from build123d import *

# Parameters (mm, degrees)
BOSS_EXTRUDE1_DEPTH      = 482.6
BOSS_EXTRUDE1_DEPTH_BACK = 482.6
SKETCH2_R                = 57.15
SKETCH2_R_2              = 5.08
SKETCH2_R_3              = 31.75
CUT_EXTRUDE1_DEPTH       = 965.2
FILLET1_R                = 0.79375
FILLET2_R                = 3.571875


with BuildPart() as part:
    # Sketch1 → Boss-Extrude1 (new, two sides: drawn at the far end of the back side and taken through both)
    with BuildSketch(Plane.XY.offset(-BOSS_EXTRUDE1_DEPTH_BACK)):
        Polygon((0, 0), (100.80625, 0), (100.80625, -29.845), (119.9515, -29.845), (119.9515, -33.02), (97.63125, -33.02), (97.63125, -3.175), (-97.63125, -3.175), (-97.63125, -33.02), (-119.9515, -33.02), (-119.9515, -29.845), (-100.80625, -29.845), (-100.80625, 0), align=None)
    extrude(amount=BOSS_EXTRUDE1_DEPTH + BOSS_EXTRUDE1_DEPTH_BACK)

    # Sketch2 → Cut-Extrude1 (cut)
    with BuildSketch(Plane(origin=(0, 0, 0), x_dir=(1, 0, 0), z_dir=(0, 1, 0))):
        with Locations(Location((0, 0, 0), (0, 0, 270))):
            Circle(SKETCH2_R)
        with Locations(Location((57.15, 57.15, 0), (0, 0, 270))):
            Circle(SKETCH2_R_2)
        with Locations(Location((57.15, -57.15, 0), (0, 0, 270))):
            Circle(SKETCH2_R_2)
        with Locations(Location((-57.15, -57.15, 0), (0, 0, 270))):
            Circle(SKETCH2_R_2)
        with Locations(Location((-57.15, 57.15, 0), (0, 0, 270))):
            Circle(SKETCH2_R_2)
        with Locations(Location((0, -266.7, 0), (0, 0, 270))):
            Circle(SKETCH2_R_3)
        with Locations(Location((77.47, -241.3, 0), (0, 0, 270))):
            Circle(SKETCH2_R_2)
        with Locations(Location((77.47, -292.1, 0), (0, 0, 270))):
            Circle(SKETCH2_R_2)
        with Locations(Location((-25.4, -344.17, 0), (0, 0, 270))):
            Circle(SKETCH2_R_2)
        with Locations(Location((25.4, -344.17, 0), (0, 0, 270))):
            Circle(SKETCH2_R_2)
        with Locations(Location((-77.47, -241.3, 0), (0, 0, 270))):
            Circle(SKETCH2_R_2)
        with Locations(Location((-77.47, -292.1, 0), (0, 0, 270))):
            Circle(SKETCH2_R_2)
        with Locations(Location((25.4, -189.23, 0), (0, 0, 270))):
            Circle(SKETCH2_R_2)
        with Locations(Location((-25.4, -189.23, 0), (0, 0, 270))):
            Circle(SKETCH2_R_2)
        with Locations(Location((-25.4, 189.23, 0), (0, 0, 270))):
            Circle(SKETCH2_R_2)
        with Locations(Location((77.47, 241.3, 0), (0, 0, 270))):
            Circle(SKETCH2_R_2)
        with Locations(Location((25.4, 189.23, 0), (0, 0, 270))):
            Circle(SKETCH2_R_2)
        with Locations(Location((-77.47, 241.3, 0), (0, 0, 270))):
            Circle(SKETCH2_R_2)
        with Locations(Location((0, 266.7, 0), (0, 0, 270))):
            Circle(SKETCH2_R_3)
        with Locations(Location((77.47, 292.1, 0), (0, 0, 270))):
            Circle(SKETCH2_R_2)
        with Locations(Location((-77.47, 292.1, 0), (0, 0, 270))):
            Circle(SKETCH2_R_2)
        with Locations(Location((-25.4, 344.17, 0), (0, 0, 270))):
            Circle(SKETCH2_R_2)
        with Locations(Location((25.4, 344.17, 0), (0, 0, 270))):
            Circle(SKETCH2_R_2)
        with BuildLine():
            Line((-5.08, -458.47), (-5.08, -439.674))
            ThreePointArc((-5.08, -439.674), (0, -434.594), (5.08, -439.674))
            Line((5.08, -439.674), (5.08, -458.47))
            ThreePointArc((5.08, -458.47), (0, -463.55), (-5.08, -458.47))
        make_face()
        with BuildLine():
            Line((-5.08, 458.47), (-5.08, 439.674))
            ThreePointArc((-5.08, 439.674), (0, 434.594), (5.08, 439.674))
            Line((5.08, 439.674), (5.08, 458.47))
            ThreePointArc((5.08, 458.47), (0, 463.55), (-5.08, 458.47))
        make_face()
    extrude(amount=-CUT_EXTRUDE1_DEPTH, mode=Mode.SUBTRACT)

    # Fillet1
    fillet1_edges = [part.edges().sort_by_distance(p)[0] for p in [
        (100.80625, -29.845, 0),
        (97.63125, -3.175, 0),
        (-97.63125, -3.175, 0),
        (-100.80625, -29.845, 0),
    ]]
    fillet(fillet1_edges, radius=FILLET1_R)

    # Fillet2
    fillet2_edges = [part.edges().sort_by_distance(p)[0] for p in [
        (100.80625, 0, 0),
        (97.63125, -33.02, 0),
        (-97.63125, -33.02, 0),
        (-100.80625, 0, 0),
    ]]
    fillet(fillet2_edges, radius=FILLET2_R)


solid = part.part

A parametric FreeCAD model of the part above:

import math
import FreeCAD as App
import Part
import Sketcher
Q = App.Units.Quantity


def edges_at(feature, points):
    """Names of the edges that pass closest to the given points."""
    edges = feature.Shape.Edges
    near = lambda p: min(range(len(edges)), key=lambda i: edges[i].distToShape(Part.Vertex(*p))[0])
    return sorted({f"Edge{near(p) + 1}" for p in points})


def add_polygon(sketch, points):
    """Adds a closed chain of lines whose ends are joined by coincident constraints."""
    first, n = sketch.GeometryCount, len(points)
    for a, b in zip(points, points[1:] + points[:1]):
        sketch.addGeometry(Part.LineSegment(App.Vector(*a, 0), App.Vector(*b, 0)), False)
    for i in range(n):
        sketch.addConstraint(Sketcher.Constraint("Coincident", first + i, 2, first + (i + 1) % n, 1))

doc = App.newDocument("Part")
body = doc.addObject("PartDesign::Body", "Body")

# Sketch on XY plane
sketch1 = body.newObject("Sketcher::SketchObject", "Sketch")
sketch1.AttachmentSupport = (doc.getObject("XY_Plane"), [""])
sketch1.MapMode = "FlatFace"
add_polygon(sketch1, [(100.80625, 0), (-100.80625, 0), (-100.80625, -29.845), (-119.9515, -29.845), (-119.9515, -33.02), (-97.63125, -33.02), (-97.63125, -3.175), (97.63125, -3.175), (97.63125, -33.02), (119.9515, -33.02), (119.9515, -29.845), (100.80625, -29.845)])  # lines 0-11
sketch1.addConstraint([
    Sketcher.Constraint("Horizontal", 0),
    Sketcher.Constraint("Vertical", 1),
    Sketcher.Constraint("Horizontal", 2),
    Sketcher.Constraint("Vertical", 3),
    Sketcher.Constraint("Horizontal", 4),
    Sketcher.Constraint("Vertical", 5),
    Sketcher.Constraint("Horizontal", 6),
    Sketcher.Constraint("Vertical", 7),
    Sketcher.Constraint("Horizontal", 8),
    Sketcher.Constraint("Vertical", 9),
    Sketcher.Constraint("Horizontal", 10),
    Sketcher.Constraint("Vertical", 11),
    Sketcher.Constraint("Symmetric", 0, 2, 11, 2, -1, 1),
    Sketcher.Constraint("Symmetric", 4, 2, 7, 2, -2),
    Sketcher.Constraint("Symmetric", 2, 2, 9, 2, -2),
    Sketcher.Constraint("Equal", 1, 5),
    Sketcher.Constraint("DistanceY", 3, 2, -1, 1, Q("1.3 in")),
    Sketcher.Constraint("DistanceX", 0, 2, 0, 1, Q("7.9375 in")),
    Sketcher.Constraint("DistanceX", 6, 1, 6, 2, Q("7.6875 in")),
    Sketcher.Constraint("DistanceY", 1, 2, 1, 1, Q("1.175 in")),
    Sketcher.Constraint("DistanceX", 2, 2, -1, 1, Q("4.7225 in")),
])
pad1 = body.newObject("PartDesign::Pad", "Pad")
pad1.Profile = sketch1
pad1.Type = "TwoLengths"
pad1.Length = Q("19 in")
pad1.Length2 = Q("19 in")

# Sketch on XZ plane
sketch2 = body.newObject("Sketcher::SketchObject", "Sketch001")
sketch2.AttachmentSupport = (doc.getObject("XZ_Plane"), [""])
sketch2.MapMode = "FlatFace"
sketch2.addGeometry([
    Part.Circle(App.Vector(0, 0, 0), App.Vector(0, 0, 1), 57.15),  # 0
    Part.Circle(App.Vector(57.15, -57.15, 0), App.Vector(0, 0, 1), 5.08),  # 1
    Part.Circle(App.Vector(57.15, 57.15, 0), App.Vector(0, 0, 1), 5.08),  # 2
    Part.Circle(App.Vector(-57.15, 57.15, 0), App.Vector(0, 0, 1), 5.08),  # 3
    Part.Circle(App.Vector(-57.15, -57.15, 0), App.Vector(0, 0, 1), 5.08),  # 4
    Part.Circle(App.Vector(0, 266.7, 0), App.Vector(0, 0, 1), 31.75),  # 5
    Part.Circle(App.Vector(77.47, 241.3, 0), App.Vector(0, 0, 1), 5.08),  # 6
    Part.Circle(App.Vector(77.47, 292.1, 0), App.Vector(0, 0, 1), 5.08),  # 7
    Part.Circle(App.Vector(-25.4, 344.17, 0), App.Vector(0, 0, 1), 5.08),  # 8
    Part.Circle(App.Vector(25.4, 344.17, 0), App.Vector(0, 0, 1), 5.08),  # 9
    Part.Circle(App.Vector(-77.47, 241.3, 0), App.Vector(0, 0, 1), 5.08),  # 10
    Part.Circle(App.Vector(-77.47, 292.1, 0), App.Vector(0, 0, 1), 5.08),  # 11
    Part.Circle(App.Vector(25.4, 189.23, 0), App.Vector(0, 0, 1), 5.08),  # 12
    Part.Circle(App.Vector(-25.4, 189.23, 0), App.Vector(0, 0, 1), 5.08),  # 13
    Part.Circle(App.Vector(-25.4, -189.23, 0), App.Vector(0, 0, 1), 5.08),  # 14
    Part.Circle(App.Vector(77.47, -241.3, 0), App.Vector(0, 0, 1), 5.08),  # 15
    Part.Circle(App.Vector(25.4, -189.23, 0), App.Vector(0, 0, 1), 5.08),  # 16
    Part.Circle(App.Vector(-77.47, -241.3, 0), App.Vector(0, 0, 1), 5.08),  # 17
    Part.Circle(App.Vector(0, -266.7, 0), App.Vector(0, 0, 1), 31.75),  # 18
    Part.Circle(App.Vector(77.47, -292.1, 0), App.Vector(0, 0, 1), 5.08),  # 19
    Part.Circle(App.Vector(-77.47, -292.1, 0), App.Vector(0, 0, 1), 5.08),  # 20
    Part.Circle(App.Vector(-25.4, -344.17, 0), App.Vector(0, 0, 1), 5.08),  # 21
    Part.Circle(App.Vector(25.4, -344.17, 0), App.Vector(0, 0, 1), 5.08),  # 22
    Part.LineSegment(App.Vector(-5.08, 439.674, 0), App.Vector(-5.08, 458.47, 0)),  # 23
    Part.ArcOfCircle(Part.Circle(App.Vector(0, 458.47, 0), App.Vector(0, 0, 1), 5.08), math.radians(0), math.radians(180)),  # 24
    Part.LineSegment(App.Vector(5.08, 458.47, 0), App.Vector(5.08, 439.674, 0)),  # 25
    Part.ArcOfCircle(Part.Circle(App.Vector(0, 439.674, 0), App.Vector(0, 0, 1), 5.08), math.radians(180), math.radians(360)),  # 26
    Part.LineSegment(App.Vector(-5.08, -458.47, 0), App.Vector(-5.08, -439.674, 0)),  # 27
    Part.ArcOfCircle(Part.Circle(App.Vector(0, -439.674, 0), App.Vector(0, 0, 1), 5.08), math.radians(0), math.radians(180)),  # 28
    Part.LineSegment(App.Vector(5.08, -439.674, 0), App.Vector(5.08, -458.47, 0)),  # 29
    Part.ArcOfCircle(Part.Circle(App.Vector(0, -458.47, 0), App.Vector(0, 0, 1), 5.08), math.radians(180), math.radians(360)),  # 30
], False)
sketch2.addConstraint([
    Sketcher.Constraint("Tangent", 23, 2, 24, 2),
    Sketcher.Constraint("Tangent", 24, 1, 25, 1),
    Sketcher.Constraint("Tangent", 25, 2, 26, 2),
    Sketcher.Constraint("Tangent", 26, 1, 23, 1),
    Sketcher.Constraint("Tangent", 27, 2, 28, 2),
    Sketcher.Constraint("Tangent", 28, 1, 29, 1),
    Sketcher.Constraint("Tangent", 29, 2, 30, 2),
    Sketcher.Constraint("Tangent", 30, 1, 27, 1),
    Sketcher.Constraint("Vertical", 23),
    Sketcher.Constraint("Vertical", 25),
    Sketcher.Constraint("Vertical", 27),
    Sketcher.Constraint("Vertical", 29),
    Sketcher.Constraint("Coincident", 0, 3, -1, 1),
    Sketcher.Constraint("Equal", 1, 2),
    Sketcher.Constraint("Equal", 2, 3),
    Sketcher.Constraint("Equal", 3, 4),
    Sketcher.Constraint("Equal", 4, 6),
    Sketcher.Constraint("Equal", 6, 7),
    Sketcher.Constraint("Equal", 7, 8),
    Sketcher.Constraint("Equal", 8, 9),
    Sketcher.Constraint("Equal", 9, 10),
    Sketcher.Constraint("Equal", 10, 11),
    Sketcher.Constraint("Equal", 11, 12),
    Sketcher.Constraint("Equal", 12, 13),
    Sketcher.Constraint("Equal", 13, 14),
    Sketcher.Constraint("Equal", 14, 15),
    Sketcher.Constraint("Equal", 15, 16),
    Sketcher.Constraint("Equal", 16, 17),
    Sketcher.Constraint("Equal", 5, 18),
    Sketcher.Constraint("Equal", 17, 19),
    Sketcher.Constraint("Equal", 19, 20),
    Sketcher.Constraint("Equal", 20, 21),
    Sketcher.Constraint("Equal", 21, 22),
    Sketcher.Constraint("Equal", 22, 24),
    Sketcher.Constraint("Equal", 26, 28),
    Sketcher.Constraint("Symmetric", 1, 3, 3, 3, -1, 1),
    Sketcher.Constraint("Symmetric", 2, 3, 4, 3, -1, 1),
    Sketcher.Constraint("Symmetric", 12, 3, 14, 3, -1, 1),
    Sketcher.Constraint("Symmetric", 10, 3, 15, 3, -1, 1),
    Sketcher.Constraint("Symmetric", 13, 3, 16, 3, -1, 1),
    Sketcher.Constraint("Symmetric", 6, 3, 17, 3, -1, 1),
    Sketcher.Constraint("Symmetric", 5, 3, 18, 3, -1, 1),
    Sketcher.Constraint("Symmetric", 11, 3, 19, 3, -1, 1),
    Sketcher.Constraint("Symmetric", 7, 3, 20, 3, -1, 1),
    Sketcher.Constraint("Symmetric", 9, 3, 21, 3, -1, 1),
    Sketcher.Constraint("Symmetric", 8, 3, 22, 3, -1, 1),
    Sketcher.Constraint("Symmetric", 26, 3, 28, 3, -1, 1),
    Sketcher.Constraint("Symmetric", 2, 3, 3, 3, -2),
    Sketcher.Constraint("Symmetric", 8, 3, 9, 3, -2),
    Sketcher.Constraint("Symmetric", 6, 3, 10, 3, -2),
    Sketcher.Constraint("Symmetric", 7, 3, 11, 3, -2),
    Sketcher.Constraint("Symmetric", 12, 3, 13, 3, -2),
    Sketcher.Constraint("Symmetric", 24, 3, 30, 3, -1),
    Sketcher.Constraint("PointOnObject", 5, 3, -2),
    Sketcher.Constraint("Vertical", 6, 3, 7, 3),
    Sketcher.Constraint("Vertical", 9, 3, 12, 3),
    Sketcher.Constraint("Diameter", 0, Q("4.5 in")),
    Sketcher.Constraint("Diameter", 1, Q("0.4 in")),
    Sketcher.Constraint("Diameter", 5, Q("2.5 in")),
    Sketcher.Constraint("DistanceX", 8, 3, -1, 1, Q("1 in")),
    Sketcher.Constraint("DistanceY", 6, 3, 5, 3, Q("1 in")),
    Sketcher.Constraint("DistanceY", 6, 3, 7, 3, Q("2 in")),
    Sketcher.Constraint("DistanceY", 23, 1, 23, 2, Q("0.74 in")),
    Sketcher.Constraint("DistanceY", -1, 1, 5, 3, Q("10.5 in")),
    Sketcher.Constraint("DistanceY", 1, 3, 2, 3, Q("4.5 in")),
    Sketcher.Constraint("DistanceX", 3, 3, 2, 3, Q("4.5 in")),
    Sketcher.Constraint("DistanceX", 2, 3, 6, 3, Q("0.8 in")),
    Sketcher.Constraint("DistanceY", 3, 3, 8, 3, Q("11.3 in")),
    Sketcher.Constraint("DistanceY", 2, 3, 12, 3, Q("5.2 in")),
    Sketcher.Constraint("DistanceY", 8, 3, 24, 3, Q("4.5 in")),
])
pocket1 = body.newObject("PartDesign::Pocket", "Pocket")
pocket1.Profile = sketch2
pocket1.Length = Q("38 in")
pocket1.Reversed = True
doc.recompute()

fillet = body.newObject("PartDesign::Fillet", "Fillet")
fillet.Base = (pocket1, edges_at(pocket1, [
    (100.806, -29.845, 0),
    (97.631, -3.175, 0),
    (-97.631, -3.175, 0),
    (-100.806, -29.845, 0),
]))
fillet.Radius = Q("0.03125 in")
doc.recompute()

fillet2 = body.newObject("PartDesign::Fillet", "Fillet001")
fillet2.Base = (fillet, edges_at(fillet, [
    (100.806, 0, 0),
    (97.631, -33.02, 0),
    (-97.631, -33.02, 0),
    (-100.806, 0, 0),
]))
fillet2.Radius = Q("0.140625 in")

doc.recompute()
